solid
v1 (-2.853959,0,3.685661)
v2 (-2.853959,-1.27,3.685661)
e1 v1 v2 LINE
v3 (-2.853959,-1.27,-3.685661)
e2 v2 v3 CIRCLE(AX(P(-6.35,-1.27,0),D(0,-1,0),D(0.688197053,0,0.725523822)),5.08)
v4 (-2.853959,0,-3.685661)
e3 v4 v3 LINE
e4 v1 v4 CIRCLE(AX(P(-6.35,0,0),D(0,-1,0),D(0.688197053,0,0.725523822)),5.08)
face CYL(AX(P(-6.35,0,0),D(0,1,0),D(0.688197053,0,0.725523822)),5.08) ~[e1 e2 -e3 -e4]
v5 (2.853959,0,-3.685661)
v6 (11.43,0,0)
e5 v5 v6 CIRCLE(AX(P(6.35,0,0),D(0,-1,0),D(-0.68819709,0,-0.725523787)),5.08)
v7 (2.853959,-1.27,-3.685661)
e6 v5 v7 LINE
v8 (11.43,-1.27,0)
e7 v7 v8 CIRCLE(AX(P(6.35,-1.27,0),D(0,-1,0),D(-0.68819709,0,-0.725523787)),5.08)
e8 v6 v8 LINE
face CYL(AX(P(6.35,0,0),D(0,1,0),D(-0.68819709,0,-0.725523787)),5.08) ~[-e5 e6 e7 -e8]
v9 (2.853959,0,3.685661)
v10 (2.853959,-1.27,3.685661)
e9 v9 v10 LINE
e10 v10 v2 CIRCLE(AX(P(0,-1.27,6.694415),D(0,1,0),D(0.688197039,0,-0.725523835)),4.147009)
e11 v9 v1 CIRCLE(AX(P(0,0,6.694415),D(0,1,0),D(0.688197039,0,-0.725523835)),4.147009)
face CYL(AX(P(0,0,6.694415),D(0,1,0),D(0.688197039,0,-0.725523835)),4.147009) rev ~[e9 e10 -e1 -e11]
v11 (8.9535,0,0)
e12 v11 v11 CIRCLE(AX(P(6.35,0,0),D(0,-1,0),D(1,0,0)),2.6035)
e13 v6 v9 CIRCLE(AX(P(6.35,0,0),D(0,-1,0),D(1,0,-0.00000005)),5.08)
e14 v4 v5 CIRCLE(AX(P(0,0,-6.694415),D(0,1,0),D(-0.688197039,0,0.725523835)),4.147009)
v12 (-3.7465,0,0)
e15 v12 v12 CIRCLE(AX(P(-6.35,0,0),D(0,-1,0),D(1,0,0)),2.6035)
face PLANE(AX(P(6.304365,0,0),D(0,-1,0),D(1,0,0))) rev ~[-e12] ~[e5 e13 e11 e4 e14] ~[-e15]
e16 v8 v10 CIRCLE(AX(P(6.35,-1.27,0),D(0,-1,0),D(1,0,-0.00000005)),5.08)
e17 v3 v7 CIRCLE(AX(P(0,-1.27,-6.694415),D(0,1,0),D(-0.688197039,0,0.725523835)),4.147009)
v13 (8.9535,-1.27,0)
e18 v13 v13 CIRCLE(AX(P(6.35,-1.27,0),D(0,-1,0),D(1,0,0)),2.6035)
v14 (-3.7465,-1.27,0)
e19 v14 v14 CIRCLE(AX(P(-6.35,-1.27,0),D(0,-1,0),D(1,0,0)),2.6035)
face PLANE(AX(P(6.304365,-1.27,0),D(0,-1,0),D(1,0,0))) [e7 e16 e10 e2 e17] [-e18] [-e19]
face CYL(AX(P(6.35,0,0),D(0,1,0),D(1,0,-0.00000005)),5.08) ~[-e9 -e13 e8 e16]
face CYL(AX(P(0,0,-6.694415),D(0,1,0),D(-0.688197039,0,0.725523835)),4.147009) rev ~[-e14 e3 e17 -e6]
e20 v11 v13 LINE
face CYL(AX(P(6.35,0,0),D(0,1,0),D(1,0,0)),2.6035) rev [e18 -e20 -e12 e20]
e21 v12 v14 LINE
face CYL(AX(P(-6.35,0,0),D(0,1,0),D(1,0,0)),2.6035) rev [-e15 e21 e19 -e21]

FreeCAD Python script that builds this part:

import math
import FreeCAD as App
import Part
import Sketcher
Q = App.Units.Quantity

doc = App.newDocument("Part")
body = doc.addObject("PartDesign::Body", "Body")

# Sketch on XZ plane
sketch1 = doc.addObject("Sketcher::SketchObject", "Sketch")
body.addObject(sketch1)
sketch1.AttachmentSupport = (doc.XZ_Plane, [""])
sketch1.MapMode = "FlatFace"
sketch1.addGeometry([
    Part.ArcOfCircle(Part.Circle(App.Vector(6.4, 0, 0), App.Vector(0, 0, 1), 5.1), math.radians(0), math.radians(133)),  # 0
    Part.ArcOfCircle(Part.Circle(App.Vector(0, 6.7, 0), App.Vector(0, 0, 1), 4.1), math.radians(-133), math.radians(-47)),  # 1
    Part.ArcOfCircle(Part.Circle(App.Vector(-6.4, 0, 0), App.Vector(0, 0, 1), 5.1), math.radians(47), math.radians(313)),  # 2
    Part.ArcOfCircle(Part.Circle(App.Vector(0, -6.7, 0), App.Vector(0, 0, 1), 4.1), math.radians(47), math.radians(133)),  # 3
    Part.ArcOfCircle(Part.Circle(App.Vector(6.4, 0, 0), App.Vector(0, 0, 1), 5.1), math.radians(-133), math.radians(0)),  # 4
    Part.Circle(App.Vector(6.3, 0, 0), App.Vector(0, 0, 1), 2.6),  # 5
    Part.Circle(App.Vector(-6.3, 0, 0), App.Vector(0, 0, 1), 2.6),  # 6
], False)
sketch1.addConstraint([
    Sketcher.Constraint("Tangent", 0, 2, 1, 2),
    Sketcher.Constraint("Tangent", 1, 1, 2, 1),
    Sketcher.Constraint("Tangent", 2, 2, 3, 2),
    Sketcher.Constraint("Tangent", 3, 1, 4, 1),
    Sketcher.Constraint("Tangent", 4, 2, 0, 1),
    Sketcher.Constraint("Coincident", 5, 3, 0, 3),
    Sketcher.Constraint("Coincident", 6, 3, 2, 3),
    Sketcher.Constraint("Equal", 0, 2),
    Sketcher.Constraint("Equal", 1, 3),
    Sketcher.Constraint("Equal", 2, 4),
    Sketcher.Constraint("Equal", 5, 6),
    Sketcher.Constraint("Symmetric", 0, 3, 2, 3, -1, 1),
    Sketcher.Constraint("PointOnObject", 0, 3, -1),
    Sketcher.Constraint("PointOnObject", 4, 2, -1),
    Sketcher.Constraint("Radius", 0, Q("0.2 in")),
    Sketcher.Constraint("Diameter", 5, Q("0.205 in")),
    Sketcher.Constraint("DistanceX", 2, 3, 0, 3, Q("0.5 in")),
    Sketcher.Constraint("Radius", 1, Q("4.147009 mm")),
])
pad1 = doc.addObject("PartDesign::Pad", "Pad")
body.addObject(pad1)
pad1.Profile = sketch1
pad1.Length = Q("0.05 in")

doc.recompute()
